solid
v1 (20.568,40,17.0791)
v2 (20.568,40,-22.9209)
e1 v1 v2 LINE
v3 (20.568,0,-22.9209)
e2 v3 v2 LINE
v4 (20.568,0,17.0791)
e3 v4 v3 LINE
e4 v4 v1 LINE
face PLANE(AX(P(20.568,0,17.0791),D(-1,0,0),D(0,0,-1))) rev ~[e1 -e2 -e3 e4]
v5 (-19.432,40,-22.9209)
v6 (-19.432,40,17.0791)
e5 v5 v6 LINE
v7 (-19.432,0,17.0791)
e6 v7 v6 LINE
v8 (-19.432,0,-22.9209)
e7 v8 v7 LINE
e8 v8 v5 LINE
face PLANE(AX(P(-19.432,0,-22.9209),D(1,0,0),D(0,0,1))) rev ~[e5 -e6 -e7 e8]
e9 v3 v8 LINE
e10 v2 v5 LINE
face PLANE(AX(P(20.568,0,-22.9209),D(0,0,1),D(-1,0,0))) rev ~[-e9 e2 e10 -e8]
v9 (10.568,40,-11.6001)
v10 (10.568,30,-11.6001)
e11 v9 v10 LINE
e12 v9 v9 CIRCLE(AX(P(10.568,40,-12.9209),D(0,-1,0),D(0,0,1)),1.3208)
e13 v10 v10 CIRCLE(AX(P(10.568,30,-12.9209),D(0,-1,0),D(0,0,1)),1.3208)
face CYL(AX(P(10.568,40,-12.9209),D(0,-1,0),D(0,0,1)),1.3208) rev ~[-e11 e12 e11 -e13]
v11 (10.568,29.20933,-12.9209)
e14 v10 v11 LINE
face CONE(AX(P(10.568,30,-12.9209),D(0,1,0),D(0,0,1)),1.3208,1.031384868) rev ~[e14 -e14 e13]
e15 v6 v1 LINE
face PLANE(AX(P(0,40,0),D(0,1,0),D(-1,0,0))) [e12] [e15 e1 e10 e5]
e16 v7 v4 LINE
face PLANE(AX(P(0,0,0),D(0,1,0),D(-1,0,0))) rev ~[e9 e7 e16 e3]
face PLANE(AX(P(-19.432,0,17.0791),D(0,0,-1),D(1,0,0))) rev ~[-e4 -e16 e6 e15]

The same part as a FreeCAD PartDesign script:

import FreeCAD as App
import Part
import Sketcher
from FreeCAD import Vector
Q = App.Units.Quantity

doc = App.newDocument("Part")
body = doc.addObject("PartDesign::Body", "Body")

# Sketch on XZ plane
sketch1 = body.newObject("Sketcher::SketchObject", "Sketch")
sketch1.AttachmentSupport = (doc.getObject("XZ_Plane"), [""])
sketch1.MapMode = "FlatFace"
sketch1.addGeometry([
    Part.LineSegment(Vector(-19.432, -22.9209, 0), Vector(-19.432, 17.0791, 0)),
    Part.LineSegment(Vector(-19.432, 17.0791, 0), Vector(20.568, 17.0791, 0)),
    Part.LineSegment(Vector(20.568, 17.0791, 0), Vector(20.568, -22.9209, 0)),
    Part.LineSegment(Vector(20.568, -22.9209, 0), Vector(-19.432, -22.9209, 0)),
], False)
sketch1.addConstraint([
    Sketcher.Constraint("Coincident", 0, 2, 1, 1),
    Sketcher.Constraint("Coincident", 1, 2, 2, 1),
    Sketcher.Constraint("Coincident", 2, 2, 3, 1),
    Sketcher.Constraint("Coincident", 3, 2, 0, 1),
    Sketcher.Constraint("Vertical", 0),
    Sketcher.Constraint("Horizontal", 1),
    Sketcher.Constraint("Vertical", 2),
    Sketcher.Constraint("Horizontal", 3),
    Sketcher.Constraint("Equal", 3, 0),
    Sketcher.Constraint("DistanceX", 1, 1, 1, 2, Q("1.5748 in")),
    Sketcher.Constraint("DistanceY", -1, 1, 0, 2, Q("0.6724 in")),
    Sketcher.Constraint("DistanceX", 0, 2, -1, 1, 19.432),
])
pad1 = body.newObject("PartDesign::Pad", "Pad")
pad1.Profile = sketch1
pad1.Length = Q("1.5748031 in")
pad1.Reversed = True

# Sketch on XZ plane
sketch2 = body.newObject("Sketcher::SketchObject", "Sketch001")
sketch2.AttachmentSupport = (doc.getObject("XZ_Plane"), [""])
sketch2.MapMode = "FlatFace"
sketch2.AttachmentOffset = App.Placement(Vector(0, 0, -1.5748031 * 25.4), App.Rotation())
sketch2.addGeometry(Part.Circle(Vector(10.568, -12.9209, 0), Vector(0, 0, 1), 1.3208), False)
sketch2.addConstraint([
    Sketcher.Constraint("Diameter", 0, Q("0.104 in")),
    Sketcher.Constraint("DistanceY", 0, 3, -1, 1, Q("0.5087 in")),
    Sketcher.Constraint("DistanceX", -1, 1, 0, 3, 10.568),
])
doc.recompute()
hole = body.newObject("PartDesign::Hole", "Hole")
hole.Profile = sketch2
hole.ThreadType = "None"
hole.Diameter = Q("0.104 in")
hole.DepthType = "Dimension"
hole.Depth = Q("0.3937008 in")
hole.DrillPoint = "Angled"
hole.DrillPointAngle = 118.188
hole.Reversed = True

doc.recompute()
